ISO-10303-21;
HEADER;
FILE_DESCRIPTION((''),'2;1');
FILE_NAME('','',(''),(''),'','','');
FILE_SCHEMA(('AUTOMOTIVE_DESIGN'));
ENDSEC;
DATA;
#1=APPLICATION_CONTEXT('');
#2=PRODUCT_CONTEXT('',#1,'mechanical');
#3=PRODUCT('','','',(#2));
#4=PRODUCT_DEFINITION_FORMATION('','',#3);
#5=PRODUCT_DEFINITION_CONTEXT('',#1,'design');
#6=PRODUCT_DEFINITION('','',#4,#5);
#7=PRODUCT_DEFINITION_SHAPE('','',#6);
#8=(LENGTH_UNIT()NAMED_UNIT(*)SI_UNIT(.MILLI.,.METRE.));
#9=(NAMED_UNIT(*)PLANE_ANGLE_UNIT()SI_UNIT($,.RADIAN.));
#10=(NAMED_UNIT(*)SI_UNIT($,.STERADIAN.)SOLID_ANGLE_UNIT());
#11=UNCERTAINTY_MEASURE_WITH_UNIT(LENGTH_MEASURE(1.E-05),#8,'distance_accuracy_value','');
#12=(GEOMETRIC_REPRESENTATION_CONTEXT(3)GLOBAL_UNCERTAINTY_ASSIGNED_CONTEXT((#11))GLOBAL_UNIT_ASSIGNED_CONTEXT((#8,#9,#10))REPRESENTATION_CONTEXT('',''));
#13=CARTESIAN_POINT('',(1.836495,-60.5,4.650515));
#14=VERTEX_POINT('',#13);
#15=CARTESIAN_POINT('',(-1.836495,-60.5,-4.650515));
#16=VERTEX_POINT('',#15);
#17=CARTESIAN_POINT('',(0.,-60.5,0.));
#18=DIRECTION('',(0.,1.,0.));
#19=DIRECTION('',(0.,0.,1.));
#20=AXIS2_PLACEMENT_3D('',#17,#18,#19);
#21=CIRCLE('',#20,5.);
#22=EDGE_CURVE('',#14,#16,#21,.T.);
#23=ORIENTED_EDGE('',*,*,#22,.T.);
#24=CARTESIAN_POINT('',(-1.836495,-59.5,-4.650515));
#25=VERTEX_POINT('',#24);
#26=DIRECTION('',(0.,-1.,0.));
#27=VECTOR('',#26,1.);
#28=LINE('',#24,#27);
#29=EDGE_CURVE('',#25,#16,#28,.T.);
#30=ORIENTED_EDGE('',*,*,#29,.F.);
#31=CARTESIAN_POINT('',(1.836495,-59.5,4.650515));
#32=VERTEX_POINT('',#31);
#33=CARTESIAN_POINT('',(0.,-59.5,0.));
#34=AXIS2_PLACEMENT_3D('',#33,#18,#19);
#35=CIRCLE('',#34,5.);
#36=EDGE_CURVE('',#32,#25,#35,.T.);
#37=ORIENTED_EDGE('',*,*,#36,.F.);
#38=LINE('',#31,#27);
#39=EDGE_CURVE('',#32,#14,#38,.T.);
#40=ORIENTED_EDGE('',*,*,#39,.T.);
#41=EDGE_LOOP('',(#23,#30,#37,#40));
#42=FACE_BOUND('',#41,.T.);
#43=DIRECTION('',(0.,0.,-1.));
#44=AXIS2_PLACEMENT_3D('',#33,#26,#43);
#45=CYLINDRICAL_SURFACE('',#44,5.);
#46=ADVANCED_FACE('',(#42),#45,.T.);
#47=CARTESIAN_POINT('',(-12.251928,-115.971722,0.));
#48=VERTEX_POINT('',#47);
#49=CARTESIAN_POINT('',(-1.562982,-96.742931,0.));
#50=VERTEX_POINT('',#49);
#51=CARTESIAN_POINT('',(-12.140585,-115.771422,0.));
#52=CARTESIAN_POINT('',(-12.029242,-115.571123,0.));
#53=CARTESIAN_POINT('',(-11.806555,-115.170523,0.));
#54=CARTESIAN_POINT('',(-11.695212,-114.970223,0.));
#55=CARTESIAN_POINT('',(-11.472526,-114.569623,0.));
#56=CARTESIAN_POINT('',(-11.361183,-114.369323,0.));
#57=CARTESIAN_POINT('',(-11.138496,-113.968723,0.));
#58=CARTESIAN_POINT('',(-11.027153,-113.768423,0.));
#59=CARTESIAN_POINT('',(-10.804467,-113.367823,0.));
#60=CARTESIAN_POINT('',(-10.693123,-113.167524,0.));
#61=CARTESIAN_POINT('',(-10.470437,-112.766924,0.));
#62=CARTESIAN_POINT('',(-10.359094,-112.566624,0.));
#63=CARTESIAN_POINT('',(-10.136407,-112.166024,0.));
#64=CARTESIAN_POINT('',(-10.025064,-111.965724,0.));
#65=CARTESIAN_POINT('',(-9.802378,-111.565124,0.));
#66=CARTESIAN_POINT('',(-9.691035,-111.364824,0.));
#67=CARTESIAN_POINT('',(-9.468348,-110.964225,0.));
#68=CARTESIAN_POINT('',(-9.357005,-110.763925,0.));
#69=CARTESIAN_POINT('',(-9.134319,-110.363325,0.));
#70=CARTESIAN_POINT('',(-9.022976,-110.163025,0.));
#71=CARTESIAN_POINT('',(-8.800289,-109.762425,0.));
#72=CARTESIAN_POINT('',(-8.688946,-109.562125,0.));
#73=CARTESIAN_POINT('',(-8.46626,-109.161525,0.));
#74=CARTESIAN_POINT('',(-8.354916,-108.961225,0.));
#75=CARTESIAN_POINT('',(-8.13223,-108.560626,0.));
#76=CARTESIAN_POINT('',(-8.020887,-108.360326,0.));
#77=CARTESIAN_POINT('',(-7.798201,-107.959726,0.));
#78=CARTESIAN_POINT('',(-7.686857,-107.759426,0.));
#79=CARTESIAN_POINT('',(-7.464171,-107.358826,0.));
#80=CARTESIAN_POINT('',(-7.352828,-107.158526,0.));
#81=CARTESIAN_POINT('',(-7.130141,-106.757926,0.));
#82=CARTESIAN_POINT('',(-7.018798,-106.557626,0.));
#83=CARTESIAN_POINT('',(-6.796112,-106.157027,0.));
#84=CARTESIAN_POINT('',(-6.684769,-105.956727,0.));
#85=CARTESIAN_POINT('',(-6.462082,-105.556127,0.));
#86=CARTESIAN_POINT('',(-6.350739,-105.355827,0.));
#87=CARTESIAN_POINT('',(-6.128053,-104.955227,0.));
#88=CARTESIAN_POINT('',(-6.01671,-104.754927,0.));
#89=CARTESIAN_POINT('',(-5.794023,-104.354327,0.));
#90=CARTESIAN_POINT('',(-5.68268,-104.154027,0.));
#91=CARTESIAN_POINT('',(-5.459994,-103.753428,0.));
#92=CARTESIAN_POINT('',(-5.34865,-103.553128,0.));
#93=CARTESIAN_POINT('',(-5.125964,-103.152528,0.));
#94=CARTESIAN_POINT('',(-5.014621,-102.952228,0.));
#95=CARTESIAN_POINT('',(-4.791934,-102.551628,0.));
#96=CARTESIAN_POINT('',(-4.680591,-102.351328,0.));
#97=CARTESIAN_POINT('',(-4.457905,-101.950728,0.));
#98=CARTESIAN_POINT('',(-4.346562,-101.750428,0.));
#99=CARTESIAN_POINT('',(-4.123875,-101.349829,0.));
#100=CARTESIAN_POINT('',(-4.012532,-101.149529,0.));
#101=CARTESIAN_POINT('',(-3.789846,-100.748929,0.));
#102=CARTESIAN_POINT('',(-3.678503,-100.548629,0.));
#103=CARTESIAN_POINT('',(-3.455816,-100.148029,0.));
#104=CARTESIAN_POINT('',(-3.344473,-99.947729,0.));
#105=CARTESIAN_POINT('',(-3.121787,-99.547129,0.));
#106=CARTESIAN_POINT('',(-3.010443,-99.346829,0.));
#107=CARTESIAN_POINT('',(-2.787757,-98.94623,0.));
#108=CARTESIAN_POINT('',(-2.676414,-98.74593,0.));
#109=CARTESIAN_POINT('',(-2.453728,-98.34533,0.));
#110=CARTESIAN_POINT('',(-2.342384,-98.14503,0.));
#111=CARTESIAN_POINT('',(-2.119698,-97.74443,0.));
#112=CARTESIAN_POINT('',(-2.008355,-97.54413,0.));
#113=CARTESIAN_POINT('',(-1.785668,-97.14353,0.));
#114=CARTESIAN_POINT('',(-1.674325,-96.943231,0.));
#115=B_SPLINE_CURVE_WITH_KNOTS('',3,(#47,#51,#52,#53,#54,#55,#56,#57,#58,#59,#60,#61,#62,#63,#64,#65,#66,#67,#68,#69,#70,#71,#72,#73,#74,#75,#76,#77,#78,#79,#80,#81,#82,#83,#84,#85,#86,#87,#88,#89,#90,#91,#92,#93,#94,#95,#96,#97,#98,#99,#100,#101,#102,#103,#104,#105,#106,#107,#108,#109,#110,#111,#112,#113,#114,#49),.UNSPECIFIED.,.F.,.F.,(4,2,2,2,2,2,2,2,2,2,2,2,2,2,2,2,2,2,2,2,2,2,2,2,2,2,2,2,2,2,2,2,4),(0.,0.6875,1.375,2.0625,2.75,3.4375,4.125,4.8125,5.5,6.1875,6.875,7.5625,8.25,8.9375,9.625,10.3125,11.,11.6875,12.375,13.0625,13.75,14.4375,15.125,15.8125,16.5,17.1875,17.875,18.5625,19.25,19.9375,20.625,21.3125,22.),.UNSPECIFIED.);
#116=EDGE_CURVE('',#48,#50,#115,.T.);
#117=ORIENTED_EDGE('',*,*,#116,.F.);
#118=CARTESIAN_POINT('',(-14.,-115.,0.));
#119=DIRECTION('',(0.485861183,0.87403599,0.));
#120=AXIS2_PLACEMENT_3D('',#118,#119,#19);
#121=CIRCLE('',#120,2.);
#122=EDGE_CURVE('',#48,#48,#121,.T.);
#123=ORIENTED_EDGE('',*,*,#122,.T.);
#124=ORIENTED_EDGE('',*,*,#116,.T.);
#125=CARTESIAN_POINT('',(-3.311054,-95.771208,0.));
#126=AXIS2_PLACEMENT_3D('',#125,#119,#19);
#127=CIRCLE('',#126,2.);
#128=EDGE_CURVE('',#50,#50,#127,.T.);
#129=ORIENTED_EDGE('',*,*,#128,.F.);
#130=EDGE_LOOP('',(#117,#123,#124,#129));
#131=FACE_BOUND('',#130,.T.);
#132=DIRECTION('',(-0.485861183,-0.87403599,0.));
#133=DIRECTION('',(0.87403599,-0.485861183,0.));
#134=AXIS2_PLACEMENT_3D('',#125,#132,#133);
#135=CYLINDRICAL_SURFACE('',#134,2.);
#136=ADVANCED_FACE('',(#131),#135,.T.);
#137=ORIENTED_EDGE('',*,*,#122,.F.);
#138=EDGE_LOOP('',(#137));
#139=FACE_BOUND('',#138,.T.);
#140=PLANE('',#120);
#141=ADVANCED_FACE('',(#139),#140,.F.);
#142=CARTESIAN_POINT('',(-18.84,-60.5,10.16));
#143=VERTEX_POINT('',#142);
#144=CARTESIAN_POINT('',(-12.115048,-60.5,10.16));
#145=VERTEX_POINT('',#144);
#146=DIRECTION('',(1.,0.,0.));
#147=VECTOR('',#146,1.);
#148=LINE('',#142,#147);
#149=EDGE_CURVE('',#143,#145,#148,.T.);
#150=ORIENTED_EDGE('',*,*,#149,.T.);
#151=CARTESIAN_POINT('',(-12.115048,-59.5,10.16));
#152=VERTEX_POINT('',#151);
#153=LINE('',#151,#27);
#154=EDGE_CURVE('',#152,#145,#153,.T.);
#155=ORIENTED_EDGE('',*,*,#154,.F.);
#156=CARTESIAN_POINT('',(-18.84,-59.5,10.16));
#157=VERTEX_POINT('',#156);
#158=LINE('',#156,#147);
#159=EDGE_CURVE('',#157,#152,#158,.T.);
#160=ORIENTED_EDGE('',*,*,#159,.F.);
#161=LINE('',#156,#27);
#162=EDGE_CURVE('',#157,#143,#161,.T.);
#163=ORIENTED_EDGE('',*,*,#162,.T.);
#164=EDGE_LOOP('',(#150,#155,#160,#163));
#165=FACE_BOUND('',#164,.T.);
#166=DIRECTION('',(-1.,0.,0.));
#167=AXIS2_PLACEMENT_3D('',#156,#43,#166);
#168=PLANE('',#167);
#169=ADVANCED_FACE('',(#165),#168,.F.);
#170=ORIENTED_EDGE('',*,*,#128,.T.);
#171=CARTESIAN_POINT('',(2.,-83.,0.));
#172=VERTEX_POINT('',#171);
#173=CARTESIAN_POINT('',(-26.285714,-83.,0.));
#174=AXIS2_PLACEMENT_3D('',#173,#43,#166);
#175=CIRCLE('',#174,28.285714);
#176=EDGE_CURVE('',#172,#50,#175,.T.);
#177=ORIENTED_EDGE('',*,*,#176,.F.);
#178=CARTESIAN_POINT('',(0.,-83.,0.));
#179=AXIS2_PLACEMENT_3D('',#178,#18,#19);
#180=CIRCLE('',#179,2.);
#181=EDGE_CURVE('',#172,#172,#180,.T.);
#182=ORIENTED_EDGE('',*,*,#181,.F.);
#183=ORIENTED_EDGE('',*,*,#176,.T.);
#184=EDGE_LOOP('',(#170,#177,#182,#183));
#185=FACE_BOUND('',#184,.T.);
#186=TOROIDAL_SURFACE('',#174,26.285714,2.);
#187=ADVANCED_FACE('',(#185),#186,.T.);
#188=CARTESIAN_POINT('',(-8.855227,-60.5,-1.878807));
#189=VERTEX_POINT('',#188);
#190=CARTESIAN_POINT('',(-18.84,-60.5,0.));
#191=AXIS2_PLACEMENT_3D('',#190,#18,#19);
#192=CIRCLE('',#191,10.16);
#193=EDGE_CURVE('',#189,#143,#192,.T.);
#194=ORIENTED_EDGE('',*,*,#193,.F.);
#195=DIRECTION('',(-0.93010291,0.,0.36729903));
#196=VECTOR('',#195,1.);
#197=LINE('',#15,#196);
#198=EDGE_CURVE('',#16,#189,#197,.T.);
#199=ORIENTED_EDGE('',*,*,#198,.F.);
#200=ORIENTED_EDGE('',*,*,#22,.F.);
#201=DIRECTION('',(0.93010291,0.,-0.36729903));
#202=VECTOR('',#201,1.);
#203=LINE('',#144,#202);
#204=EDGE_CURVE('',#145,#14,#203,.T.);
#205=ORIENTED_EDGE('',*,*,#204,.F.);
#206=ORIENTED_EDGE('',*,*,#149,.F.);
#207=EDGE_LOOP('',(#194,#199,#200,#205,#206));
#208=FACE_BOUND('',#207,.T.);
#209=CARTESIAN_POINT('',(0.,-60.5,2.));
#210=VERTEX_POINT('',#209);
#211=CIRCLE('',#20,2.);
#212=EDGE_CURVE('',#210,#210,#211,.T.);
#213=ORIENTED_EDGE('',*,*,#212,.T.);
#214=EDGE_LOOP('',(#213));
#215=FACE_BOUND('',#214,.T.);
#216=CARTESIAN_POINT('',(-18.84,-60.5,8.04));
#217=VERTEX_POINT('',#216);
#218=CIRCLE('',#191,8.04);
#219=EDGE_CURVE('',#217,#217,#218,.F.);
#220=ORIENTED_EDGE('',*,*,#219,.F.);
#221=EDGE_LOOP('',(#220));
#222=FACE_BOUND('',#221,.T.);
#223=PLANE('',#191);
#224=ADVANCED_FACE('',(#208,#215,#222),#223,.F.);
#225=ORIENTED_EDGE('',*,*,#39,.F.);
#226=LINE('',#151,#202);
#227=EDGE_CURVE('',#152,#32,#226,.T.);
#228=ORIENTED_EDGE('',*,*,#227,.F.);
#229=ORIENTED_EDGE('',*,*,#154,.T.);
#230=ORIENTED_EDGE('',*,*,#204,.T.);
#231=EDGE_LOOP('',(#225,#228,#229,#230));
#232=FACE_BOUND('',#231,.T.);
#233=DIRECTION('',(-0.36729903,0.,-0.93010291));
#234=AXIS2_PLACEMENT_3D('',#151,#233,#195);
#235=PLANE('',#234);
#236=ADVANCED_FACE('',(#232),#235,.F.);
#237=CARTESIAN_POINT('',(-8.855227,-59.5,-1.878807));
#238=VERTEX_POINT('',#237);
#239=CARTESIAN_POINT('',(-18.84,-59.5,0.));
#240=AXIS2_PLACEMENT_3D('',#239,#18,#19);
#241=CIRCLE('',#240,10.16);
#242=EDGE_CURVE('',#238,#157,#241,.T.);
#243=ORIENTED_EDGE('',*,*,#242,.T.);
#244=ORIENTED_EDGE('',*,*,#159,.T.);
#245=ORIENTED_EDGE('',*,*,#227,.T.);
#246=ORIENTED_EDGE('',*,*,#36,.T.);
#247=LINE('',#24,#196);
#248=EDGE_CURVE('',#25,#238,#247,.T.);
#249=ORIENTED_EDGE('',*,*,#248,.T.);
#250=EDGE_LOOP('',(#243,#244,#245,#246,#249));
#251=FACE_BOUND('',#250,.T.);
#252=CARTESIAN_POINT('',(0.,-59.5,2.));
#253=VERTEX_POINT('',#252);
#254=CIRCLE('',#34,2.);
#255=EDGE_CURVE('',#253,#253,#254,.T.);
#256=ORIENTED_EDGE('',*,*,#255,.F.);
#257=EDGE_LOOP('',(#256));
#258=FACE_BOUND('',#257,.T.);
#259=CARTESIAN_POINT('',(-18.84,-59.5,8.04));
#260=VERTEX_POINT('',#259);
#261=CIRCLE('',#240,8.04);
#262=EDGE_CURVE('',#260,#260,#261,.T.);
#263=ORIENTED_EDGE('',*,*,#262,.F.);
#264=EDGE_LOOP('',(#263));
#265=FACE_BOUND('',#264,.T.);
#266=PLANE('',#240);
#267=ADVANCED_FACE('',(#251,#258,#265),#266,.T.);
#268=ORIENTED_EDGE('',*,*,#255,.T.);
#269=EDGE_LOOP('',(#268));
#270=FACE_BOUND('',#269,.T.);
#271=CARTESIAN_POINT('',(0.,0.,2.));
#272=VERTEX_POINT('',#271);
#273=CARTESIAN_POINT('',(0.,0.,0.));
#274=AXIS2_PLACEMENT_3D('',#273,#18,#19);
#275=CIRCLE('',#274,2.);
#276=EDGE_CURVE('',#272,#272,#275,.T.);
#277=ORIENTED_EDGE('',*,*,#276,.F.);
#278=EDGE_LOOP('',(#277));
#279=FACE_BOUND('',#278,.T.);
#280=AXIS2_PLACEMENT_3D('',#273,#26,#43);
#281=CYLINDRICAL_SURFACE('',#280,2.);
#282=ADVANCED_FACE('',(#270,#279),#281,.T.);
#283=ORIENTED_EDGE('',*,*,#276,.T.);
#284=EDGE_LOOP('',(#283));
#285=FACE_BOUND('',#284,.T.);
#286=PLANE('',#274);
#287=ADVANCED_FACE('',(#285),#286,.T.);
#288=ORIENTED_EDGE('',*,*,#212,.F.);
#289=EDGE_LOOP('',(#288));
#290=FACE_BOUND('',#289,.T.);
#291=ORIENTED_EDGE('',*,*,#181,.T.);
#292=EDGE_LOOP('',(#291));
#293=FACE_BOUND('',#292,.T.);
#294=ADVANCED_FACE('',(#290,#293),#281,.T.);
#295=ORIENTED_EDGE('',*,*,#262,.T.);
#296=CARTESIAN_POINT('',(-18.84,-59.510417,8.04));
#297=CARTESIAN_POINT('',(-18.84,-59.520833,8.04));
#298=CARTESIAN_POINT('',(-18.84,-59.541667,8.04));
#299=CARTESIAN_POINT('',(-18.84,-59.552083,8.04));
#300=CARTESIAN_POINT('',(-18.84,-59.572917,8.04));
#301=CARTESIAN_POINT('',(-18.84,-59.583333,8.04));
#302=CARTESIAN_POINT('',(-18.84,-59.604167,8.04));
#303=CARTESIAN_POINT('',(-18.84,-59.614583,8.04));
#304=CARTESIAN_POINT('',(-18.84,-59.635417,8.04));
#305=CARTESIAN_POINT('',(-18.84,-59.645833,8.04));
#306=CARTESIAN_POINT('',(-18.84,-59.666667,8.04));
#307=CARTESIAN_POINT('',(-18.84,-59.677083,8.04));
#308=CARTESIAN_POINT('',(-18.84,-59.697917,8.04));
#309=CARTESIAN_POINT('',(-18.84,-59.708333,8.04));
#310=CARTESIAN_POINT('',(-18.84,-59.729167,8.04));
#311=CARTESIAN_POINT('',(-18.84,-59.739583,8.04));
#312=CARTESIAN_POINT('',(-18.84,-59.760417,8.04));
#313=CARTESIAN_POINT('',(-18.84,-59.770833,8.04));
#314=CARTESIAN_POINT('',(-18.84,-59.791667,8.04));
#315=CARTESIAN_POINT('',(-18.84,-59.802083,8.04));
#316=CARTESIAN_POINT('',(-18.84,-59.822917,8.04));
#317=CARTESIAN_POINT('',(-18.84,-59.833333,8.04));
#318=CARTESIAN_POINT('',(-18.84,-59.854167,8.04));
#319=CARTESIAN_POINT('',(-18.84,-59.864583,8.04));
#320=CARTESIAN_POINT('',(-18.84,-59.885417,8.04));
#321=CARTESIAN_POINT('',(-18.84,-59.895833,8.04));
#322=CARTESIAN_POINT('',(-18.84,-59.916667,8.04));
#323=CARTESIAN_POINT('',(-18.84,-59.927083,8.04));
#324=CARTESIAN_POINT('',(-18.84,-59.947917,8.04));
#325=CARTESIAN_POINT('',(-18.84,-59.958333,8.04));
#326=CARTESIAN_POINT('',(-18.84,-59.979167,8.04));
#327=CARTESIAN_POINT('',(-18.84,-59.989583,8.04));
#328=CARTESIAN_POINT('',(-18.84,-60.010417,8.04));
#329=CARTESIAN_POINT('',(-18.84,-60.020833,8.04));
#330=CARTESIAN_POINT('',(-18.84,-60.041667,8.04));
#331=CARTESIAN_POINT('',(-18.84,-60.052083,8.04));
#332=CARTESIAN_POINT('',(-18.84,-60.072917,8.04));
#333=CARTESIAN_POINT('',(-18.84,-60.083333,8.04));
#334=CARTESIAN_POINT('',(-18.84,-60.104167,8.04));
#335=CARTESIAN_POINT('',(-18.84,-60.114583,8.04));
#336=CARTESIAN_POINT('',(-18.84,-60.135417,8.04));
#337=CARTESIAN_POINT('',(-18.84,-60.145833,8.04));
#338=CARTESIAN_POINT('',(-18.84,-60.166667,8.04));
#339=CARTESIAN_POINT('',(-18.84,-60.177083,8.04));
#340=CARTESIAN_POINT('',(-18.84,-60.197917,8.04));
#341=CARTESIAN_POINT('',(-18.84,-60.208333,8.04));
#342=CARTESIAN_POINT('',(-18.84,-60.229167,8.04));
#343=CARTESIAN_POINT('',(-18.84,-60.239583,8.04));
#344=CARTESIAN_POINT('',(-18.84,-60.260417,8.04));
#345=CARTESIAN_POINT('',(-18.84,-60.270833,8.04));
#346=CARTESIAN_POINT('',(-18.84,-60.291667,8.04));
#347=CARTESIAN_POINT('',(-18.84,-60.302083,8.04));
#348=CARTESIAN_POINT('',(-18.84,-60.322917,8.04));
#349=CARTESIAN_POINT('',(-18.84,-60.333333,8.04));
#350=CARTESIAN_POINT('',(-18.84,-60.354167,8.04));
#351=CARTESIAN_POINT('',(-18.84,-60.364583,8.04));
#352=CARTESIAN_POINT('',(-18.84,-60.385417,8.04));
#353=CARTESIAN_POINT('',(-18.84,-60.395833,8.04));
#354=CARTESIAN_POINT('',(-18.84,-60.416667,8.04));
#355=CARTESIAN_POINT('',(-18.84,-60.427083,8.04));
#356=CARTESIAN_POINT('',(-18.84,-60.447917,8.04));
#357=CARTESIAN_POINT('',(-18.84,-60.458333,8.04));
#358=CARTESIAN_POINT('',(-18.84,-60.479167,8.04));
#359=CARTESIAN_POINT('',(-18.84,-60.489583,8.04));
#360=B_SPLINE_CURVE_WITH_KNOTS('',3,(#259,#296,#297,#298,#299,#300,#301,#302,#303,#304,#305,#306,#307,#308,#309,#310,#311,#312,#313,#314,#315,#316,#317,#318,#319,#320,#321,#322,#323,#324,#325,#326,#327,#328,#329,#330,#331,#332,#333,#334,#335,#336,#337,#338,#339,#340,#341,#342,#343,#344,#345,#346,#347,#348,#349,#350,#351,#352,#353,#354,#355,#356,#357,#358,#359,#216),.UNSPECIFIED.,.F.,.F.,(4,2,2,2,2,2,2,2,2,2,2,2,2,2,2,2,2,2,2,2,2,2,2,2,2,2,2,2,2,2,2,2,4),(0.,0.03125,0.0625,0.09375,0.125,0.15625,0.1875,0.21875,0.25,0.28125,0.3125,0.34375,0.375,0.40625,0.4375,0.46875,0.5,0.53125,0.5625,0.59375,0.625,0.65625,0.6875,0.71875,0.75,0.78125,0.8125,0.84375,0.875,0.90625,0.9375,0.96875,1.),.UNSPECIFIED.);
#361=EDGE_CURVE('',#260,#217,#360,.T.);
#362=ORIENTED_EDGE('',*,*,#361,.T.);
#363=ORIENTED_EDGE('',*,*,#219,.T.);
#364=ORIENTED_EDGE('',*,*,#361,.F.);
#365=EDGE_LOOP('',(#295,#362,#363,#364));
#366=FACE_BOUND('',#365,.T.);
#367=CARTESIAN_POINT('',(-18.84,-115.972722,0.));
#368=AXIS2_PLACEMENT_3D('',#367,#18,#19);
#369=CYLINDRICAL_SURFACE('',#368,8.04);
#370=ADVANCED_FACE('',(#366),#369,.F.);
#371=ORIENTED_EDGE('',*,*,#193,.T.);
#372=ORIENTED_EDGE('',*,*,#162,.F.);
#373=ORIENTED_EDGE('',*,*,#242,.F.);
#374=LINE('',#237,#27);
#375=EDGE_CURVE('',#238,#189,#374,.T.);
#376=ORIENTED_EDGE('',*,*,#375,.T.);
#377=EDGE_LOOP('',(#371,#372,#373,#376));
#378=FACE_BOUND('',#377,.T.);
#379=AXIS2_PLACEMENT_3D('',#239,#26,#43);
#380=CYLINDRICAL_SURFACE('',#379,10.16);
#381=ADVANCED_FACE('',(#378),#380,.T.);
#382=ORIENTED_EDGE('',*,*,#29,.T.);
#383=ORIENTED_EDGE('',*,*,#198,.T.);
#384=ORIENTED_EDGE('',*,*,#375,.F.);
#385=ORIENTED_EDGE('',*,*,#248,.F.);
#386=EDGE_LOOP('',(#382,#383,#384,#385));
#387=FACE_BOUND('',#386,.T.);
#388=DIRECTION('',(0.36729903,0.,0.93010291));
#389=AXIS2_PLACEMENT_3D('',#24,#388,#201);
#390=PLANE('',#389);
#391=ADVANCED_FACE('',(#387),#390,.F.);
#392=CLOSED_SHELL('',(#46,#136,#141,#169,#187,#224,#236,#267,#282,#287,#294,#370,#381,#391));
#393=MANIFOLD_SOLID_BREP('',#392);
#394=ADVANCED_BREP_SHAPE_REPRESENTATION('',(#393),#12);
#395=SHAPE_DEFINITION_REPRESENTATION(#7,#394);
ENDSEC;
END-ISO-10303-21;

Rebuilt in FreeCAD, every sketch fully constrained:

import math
import FreeCAD as App
import Part
import Sketcher

doc = App.newDocument("Part")
body = doc.addObject("PartDesign::Body", "Body")

# Sketch on XZ plane
sketch1 = body.newObject("Sketcher::SketchObject", "Sketch")
sketch1.AttachmentSupport = (doc.getObject("XZ_Plane"), [""])
sketch1.MapMode = "FlatFace"
sketch1.addGeometry(Part.Circle(App.Vector(0, 0, 0), App.Vector(0, 0, 1), 2), False)
sketch1.addConstraint(Sketcher.Constraint("Coincident", 0, 3, -1, 1))
sketch1.addConstraint(Sketcher.Constraint("Diameter", 0, 4.0))

# Sketch on XY plane
sketch2 = body.newObject("Sketcher::SketchObject", "Sketch001")
sketch2.AttachmentSupport = (doc.getObject("XY_Plane"), [""])
sketch2.MapMode = "FlatFace"
sketch2.addGeometry(Part.LineSegment(App.Vector(0, 0, 0), App.Vector(0, -83, 0)), False)
sketch2.addGeometry(Part.ArcOfCircle(Part.Circle(App.Vector(-26, -83, 0), App.Vector(0, 0, 1), 26), math.radians(-29), math.radians(0)), False)
sketch2.addGeometry(Part.LineSegment(App.Vector(-3, -96, 0), App.Vector(-14, -115, 0)), False)
sketch2.addConstraint(Sketcher.Constraint("Tangent", 0, 2, 1, 2))
sketch2.addConstraint(Sketcher.Constraint("Tangent", 1, 1, 2, 1))
sketch2.addConstraint(Sketcher.Constraint("Vertical", 0))
sketch2.addConstraint(Sketcher.Constraint("Coincident", 0, 1, -1, 1))
sketch2.addConstraint(Sketcher.Constraint("DistanceY", 0, 2, 0, 1, 83.0))
sketch2.addConstraint(Sketcher.Constraint("Distance", 2, 22.0))
sketch2.addConstraint(Sketcher.Constraint("DistanceX", 2, 2, -1, 1, 14.0))
sketch2.addConstraint(Sketcher.Constraint("DistanceY", 2, 2, -1, 1, 115.0))
doc.recompute()

additivepipe = body.newObject("PartDesign::AdditivePipe", "AdditivePipe")
additivepipe.Profile = sketch1
additivepipe.Spine = (sketch2, ["Edge1", "Edge2", "Edge3"])

# Sketch on XZ plane
sketch3 = body.newObject("Sketcher::SketchObject", "Sketch002")
sketch3.AttachmentSupport = (doc.getObject("XZ_Plane"), [""])
sketch3.MapMode = "FlatFace"
sketch3.AttachmentOffset = App.Placement(App.Vector(0, 0, 60), App.Rotation())
sketch3.addGeometry(Part.LineSegment(App.Vector(-19, 10, 0), App.Vector(-12, 10, 0)), False)
sketch3.addGeometry(Part.LineSegment(App.Vector(-12, 10, 0), App.Vector(2, 5, 0)), False)
sketch3.addGeometry(Part.ArcOfCircle(Part.Circle(App.Vector(0, 0, 0), App.Vector(0, 0, 1), 5), math.radians(-112), math.radians(68)), False)
sketch3.addGeometry(Part.LineSegment(App.Vector(-2, -5, 0), App.Vector(-9, -2, 0)), False)
sketch3.addGeometry(Part.ArcOfCircle(Part.Circle(App.Vector(-19, 0, 0), App.Vector(0, 0, 1), 10), math.radians(90), math.radians(349)), False)
sketch3.addConstraint(Sketcher.Constraint("Coincident", 0, 2, 1, 1))
sketch3.addConstraint(Sketcher.Constraint("Tangent", 1, 2, 2, 2))
sketch3.addConstraint(Sketcher.Constraint("Tangent", 2, 1, 3, 1))
sketch3.addConstraint(Sketcher.Constraint("Coincident", 3, 2, 4, 2))
sketch3.addConstraint(Sketcher.Constraint("Tangent", 4, 1, 0, 1))
sketch3.addConstraint(Sketcher.Constraint("Horizontal", 0))
sketch3.addConstraint(Sketcher.Constraint("Coincident", 2, 3, -1, 1))
sketch3.addConstraint(Sketcher.Constraint("PointOnObject", 4, 3, -1))
sketch3.addConstraint(Sketcher.Constraint("Parallel", 1, 3))
sketch3.addConstraint(Sketcher.Constraint("Radius", 2, 5.0))
sketch3.addConstraint(Sketcher.Constraint("Radius", 4, 10.16))
sketch3.addConstraint(Sketcher.Constraint("Distance", 1, 15.0))
sketch3.addConstraint(Sketcher.Constraint("DistanceX", 4, 3, -1, 1, 18.84))
pad1 = body.newObject("PartDesign::Pad", "Pad")
pad1.Profile = sketch3
pad1.Length = 1
pad1.Midplane = True

# Sketch on XZ plane
sketch4 = body.newObject("Sketcher::SketchObject", "Sketch003")
sketch4.AttachmentSupport = (doc.getObject("XZ_Plane"), [""])
sketch4.MapMode = "FlatFace"
sketch4.AttachmentOffset = App.Placement(App.Vector(0, 0, 59.5), App.Rotation())
sketch4.addGeometry(Part.Circle(App.Vector(-19, 0, 0), App.Vector(0, 0, 1), 8), False)
sketch4.addConstraint(Sketcher.Constraint("PointOnObject", 0, 3, -1))
sketch4.addConstraint(Sketcher.Constraint("Diameter", 0, 16.08))
sketch4.addConstraint(Sketcher.Constraint("DistanceX", 0, 3, -1, 1, 18.84))
pocket1 = body.newObject("PartDesign::Pocket", "Pocket")
pocket1.Profile = sketch4
pocket1.Type = "UpToFirst"
pocket1.Reversed = True

doc.recompute()
